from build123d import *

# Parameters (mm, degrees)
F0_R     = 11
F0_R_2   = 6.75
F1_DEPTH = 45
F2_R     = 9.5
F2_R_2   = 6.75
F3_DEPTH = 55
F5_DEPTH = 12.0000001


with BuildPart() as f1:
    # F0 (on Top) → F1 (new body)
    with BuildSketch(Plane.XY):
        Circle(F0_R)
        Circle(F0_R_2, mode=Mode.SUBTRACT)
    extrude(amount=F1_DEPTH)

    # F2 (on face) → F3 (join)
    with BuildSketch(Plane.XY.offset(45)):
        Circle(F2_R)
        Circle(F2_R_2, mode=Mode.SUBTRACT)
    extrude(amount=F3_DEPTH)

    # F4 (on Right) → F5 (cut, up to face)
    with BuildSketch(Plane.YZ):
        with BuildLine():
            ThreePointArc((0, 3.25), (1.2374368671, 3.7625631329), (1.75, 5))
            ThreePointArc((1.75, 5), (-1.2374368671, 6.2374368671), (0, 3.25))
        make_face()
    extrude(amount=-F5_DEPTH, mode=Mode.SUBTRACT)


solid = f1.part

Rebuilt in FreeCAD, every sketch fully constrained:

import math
import FreeCAD as App
import Part
import Sketcher
from FreeCAD import Vector
Q = App.Units.Quantity

doc = App.newDocument("Part")
body = doc.addObject("PartDesign::Body", "Body")

# Sketch on XY plane
sketch1 = doc.addObject("Sketcher::SketchObject", "Sketch")
body.addObject(sketch1)
sketch1.AttachmentSupport = (doc.XY_Plane, [""])
sketch1.MapMode = "FlatFace"
sketch1.addGeometry(Part.Circle(Vector(0, 0, 0), Vector(0, 0, 1), 11), False)
sketch1.addGeometry(Part.Circle(Vector(0, 0, 0), Vector(0, 0, 1), 7), False)
sketch1.addConstraint(Sketcher.Constraint("Coincident", 0, 3, -1, 1))
sketch1.addConstraint(Sketcher.Constraint("Coincident", 1, 3, -1, 1))
sketch1.addConstraint(Sketcher.Constraint("Diameter", 0, Q("22 mm")))
sketch1.addConstraint(Sketcher.Constraint("Diameter", 1, Q("13.5 mm")))
pad1 = doc.addObject("PartDesign::Pad", "Pad")
body.addObject(pad1)
pad1.Profile = sketch1
pad1.Length = 45

# Sketch on XY plane
sketch2 = doc.addObject("Sketcher::SketchObject", "Sketch001")
body.addObject(sketch2)
sketch2.AttachmentSupport = (doc.XY_Plane, [""])
sketch2.MapMode = "FlatFace"
sketch2.AttachmentOffset = App.Placement(Vector(0, 0, 45), App.Rotation())
sketch2.addGeometry(Part.Circle(Vector(0, 0, 0), Vector(0, 0, 1), 10), False)
sketch2.addGeometry(Part.Circle(Vector(0, 0, 0), Vector(0, 0, 1), 7), False)
sketch2.addConstraint(Sketcher.Constraint("Coincident", 0, 3, -1, 1))
sketch2.addConstraint(Sketcher.Constraint("Coincident", 1, 3, -1, 1))
sketch2.addConstraint(Sketcher.Constraint("Diameter", 0, Q("19 mm")))
sketch2.addConstraint(Sketcher.Constraint("Diameter", 1, Q("13.5 mm")))
pad2 = doc.addObject("PartDesign::Pad", "Pad001")
body.addObject(pad2)
pad2.Profile = sketch2
pad2.Length = 55

# Sketch on YZ plane
sketch3 = doc.addObject("Sketcher::SketchObject", "Sketch002")
body.addObject(sketch3)
sketch3.AttachmentSupport = (doc.YZ_Plane, [""])
sketch3.MapMode = "FlatFace"
sketch3.addGeometry(Part.ArcOfCircle(Part.Circle(Vector(0, 5, 0), Vector(0, 0, 1), 1.8), math.radians(-90), math.radians(0)), False)
sketch3.addGeometry(Part.ArcOfCircle(Part.Circle(Vector(0, 5, 0), Vector(0, 0, 1), 1.8), math.radians(0), math.radians(270)), False)
sketch3.addConstraint(Sketcher.Constraint("Tangent", 0, 1, 1, 2))
sketch3.addConstraint(Sketcher.Constraint("Coincident", 1, 1, 0, 2))
sketch3.addConstraint(Sketcher.Constraint("PointOnObject", 0, 3, -2))
sketch3.addConstraint(Sketcher.Constraint("PointOnObject", 0, 1, -2))
sketch3.addConstraint(Sketcher.Constraint("Horizontal", 0, 3, 1, 1))
sketch3.addConstraint(Sketcher.Constraint("Radius", 0, Q("1.75 mm")))
sketch3.addConstraint(Sketcher.Constraint("DistanceY", -1, 1, 0, 3, Q("5 mm")))
pocket1 = doc.addObject("PartDesign::Pocket", "Pocket")
body.addObject(pocket1)
pocket1.Profile = sketch3
pocket1.Length = 12

doc.recompute()
